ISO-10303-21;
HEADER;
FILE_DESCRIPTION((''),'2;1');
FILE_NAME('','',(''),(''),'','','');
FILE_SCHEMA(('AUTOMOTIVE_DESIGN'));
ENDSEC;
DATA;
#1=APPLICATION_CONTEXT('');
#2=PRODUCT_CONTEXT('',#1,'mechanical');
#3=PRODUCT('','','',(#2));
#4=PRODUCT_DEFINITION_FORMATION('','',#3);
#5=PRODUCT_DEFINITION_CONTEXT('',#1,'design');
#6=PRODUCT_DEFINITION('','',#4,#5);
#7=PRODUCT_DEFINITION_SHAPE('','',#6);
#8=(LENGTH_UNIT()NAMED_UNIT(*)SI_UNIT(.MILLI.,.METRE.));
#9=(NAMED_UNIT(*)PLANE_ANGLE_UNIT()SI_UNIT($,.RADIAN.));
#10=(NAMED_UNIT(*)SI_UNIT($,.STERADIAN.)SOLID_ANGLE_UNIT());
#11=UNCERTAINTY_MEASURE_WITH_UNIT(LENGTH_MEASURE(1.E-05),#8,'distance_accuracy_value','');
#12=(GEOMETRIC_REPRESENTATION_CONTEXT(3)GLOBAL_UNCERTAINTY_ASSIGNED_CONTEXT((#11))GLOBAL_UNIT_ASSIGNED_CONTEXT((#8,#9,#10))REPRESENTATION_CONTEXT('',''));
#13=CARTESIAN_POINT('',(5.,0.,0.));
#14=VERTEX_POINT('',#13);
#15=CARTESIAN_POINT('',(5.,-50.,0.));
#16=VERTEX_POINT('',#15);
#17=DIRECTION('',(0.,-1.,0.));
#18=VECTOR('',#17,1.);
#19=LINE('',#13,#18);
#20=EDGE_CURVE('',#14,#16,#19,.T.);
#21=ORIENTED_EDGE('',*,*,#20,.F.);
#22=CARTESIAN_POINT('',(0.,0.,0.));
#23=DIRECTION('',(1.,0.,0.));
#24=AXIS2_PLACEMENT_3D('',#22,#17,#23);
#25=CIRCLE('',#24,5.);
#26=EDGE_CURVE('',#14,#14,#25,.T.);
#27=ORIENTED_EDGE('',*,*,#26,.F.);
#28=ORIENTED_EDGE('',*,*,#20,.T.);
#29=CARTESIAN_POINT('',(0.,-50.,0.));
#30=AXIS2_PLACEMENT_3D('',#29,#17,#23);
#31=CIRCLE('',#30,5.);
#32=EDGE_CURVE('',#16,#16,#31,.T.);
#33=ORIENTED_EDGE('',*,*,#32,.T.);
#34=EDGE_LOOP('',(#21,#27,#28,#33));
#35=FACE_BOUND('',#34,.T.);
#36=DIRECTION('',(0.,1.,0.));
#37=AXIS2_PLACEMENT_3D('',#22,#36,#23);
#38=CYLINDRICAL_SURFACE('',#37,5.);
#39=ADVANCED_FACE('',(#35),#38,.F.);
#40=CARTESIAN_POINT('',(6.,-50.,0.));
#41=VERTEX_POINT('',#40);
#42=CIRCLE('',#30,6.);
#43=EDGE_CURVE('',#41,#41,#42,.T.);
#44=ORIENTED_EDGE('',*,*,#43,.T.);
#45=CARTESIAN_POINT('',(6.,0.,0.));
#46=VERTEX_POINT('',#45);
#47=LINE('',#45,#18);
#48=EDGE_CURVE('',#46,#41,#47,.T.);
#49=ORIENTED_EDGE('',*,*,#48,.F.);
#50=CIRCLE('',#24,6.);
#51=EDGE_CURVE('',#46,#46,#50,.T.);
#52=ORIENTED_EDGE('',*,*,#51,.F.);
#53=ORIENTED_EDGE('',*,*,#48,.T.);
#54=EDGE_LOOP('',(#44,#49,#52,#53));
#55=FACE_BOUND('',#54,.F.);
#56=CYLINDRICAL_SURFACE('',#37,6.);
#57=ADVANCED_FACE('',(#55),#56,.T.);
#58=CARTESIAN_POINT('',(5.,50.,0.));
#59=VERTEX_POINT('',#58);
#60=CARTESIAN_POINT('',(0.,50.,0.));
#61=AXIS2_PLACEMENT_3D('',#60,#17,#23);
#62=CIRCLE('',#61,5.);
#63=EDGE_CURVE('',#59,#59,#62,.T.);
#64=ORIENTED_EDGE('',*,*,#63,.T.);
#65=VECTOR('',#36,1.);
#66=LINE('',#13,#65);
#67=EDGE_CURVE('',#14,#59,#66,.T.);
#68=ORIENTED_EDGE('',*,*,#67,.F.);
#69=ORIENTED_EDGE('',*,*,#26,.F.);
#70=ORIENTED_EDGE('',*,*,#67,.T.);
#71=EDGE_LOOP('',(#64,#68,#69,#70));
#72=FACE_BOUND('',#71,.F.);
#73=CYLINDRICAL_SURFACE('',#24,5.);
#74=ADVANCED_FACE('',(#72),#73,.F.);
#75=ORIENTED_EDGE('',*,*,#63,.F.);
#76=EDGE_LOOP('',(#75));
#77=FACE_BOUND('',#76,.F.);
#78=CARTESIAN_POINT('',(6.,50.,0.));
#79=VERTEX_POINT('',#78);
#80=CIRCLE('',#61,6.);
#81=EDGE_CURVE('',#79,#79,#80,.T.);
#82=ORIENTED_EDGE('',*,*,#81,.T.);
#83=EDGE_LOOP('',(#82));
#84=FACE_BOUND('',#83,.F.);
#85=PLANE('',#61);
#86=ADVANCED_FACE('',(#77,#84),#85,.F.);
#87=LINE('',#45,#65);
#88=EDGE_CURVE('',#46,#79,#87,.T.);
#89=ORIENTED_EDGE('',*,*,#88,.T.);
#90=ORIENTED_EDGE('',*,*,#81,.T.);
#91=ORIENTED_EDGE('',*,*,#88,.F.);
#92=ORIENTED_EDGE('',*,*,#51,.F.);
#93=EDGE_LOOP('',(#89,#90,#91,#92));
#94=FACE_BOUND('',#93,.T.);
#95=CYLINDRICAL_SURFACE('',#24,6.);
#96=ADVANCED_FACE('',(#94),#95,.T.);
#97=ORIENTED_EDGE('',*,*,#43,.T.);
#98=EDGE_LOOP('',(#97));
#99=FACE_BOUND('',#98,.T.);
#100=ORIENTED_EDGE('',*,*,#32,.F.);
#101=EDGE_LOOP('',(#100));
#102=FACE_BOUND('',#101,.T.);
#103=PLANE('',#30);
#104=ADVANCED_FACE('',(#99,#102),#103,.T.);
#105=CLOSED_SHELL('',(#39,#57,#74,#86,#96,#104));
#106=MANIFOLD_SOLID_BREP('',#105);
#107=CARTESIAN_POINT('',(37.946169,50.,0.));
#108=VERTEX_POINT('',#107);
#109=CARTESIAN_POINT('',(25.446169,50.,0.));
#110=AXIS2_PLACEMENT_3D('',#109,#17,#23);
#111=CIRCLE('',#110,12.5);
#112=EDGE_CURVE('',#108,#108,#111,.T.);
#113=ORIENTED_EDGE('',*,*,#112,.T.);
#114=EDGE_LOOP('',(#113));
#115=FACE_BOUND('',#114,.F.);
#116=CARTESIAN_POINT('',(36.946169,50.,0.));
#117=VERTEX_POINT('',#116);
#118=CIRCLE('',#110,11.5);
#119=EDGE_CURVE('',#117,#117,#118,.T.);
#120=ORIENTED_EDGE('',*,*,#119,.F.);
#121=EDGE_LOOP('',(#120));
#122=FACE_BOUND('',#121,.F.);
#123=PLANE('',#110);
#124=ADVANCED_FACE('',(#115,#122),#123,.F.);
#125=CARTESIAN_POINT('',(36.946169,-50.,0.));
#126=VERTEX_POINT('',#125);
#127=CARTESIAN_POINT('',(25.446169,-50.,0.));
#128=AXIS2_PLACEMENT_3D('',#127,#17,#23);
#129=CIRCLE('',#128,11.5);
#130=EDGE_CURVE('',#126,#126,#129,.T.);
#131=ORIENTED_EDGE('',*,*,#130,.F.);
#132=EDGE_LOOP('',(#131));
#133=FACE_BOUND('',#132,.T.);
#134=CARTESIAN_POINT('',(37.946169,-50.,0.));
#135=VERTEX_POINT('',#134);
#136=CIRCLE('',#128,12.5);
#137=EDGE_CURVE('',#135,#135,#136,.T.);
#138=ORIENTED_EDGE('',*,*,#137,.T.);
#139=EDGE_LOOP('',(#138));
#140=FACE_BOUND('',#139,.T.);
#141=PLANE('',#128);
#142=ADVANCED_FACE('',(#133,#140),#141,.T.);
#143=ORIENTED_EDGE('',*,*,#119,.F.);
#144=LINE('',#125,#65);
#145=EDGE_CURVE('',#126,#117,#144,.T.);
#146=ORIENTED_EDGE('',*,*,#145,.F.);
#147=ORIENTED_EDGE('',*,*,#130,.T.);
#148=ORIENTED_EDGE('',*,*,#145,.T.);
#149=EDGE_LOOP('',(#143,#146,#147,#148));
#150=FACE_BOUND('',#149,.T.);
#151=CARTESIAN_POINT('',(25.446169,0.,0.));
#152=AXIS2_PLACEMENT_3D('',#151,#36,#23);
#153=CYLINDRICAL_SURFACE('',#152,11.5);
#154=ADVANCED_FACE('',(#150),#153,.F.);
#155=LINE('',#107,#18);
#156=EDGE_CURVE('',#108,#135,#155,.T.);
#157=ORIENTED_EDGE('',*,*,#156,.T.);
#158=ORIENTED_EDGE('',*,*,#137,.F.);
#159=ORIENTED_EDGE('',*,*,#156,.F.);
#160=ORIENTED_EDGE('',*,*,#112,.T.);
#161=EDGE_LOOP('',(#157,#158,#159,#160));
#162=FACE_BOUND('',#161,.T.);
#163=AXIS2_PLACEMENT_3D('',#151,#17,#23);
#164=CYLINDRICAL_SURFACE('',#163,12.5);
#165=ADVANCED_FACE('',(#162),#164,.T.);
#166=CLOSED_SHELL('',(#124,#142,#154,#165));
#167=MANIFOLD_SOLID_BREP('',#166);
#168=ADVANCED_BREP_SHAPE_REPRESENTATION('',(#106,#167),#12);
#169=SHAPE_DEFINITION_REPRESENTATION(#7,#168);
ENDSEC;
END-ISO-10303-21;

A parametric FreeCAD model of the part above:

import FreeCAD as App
import Part
import Sketcher
Q = App.Units.Quantity

doc = App.newDocument("Part")
body = doc.addObject("PartDesign::Body", "Body")
body.AllowCompound = True

sketch1 = body.newObject("Sketcher::SketchObject", "Sketch")
sketch1.AttachmentSupport = (doc.getObject("XZ_Plane"), [""])
sketch1.MapMode = "FlatFace"
sketch1.addGeometry([
    Part.Circle(App.Vector(0, 0, 0), App.Vector(0, 0, 1), 6),
    Part.Circle(App.Vector(0, 0, 0), App.Vector(0, 0, 1), 5),
    Part.Circle(App.Vector(25, 0, 0), App.Vector(0, 0, 1), 12),
    Part.Circle(App.Vector(25, 0, 0), App.Vector(0, 0, 1), 12),
], False)
sketch1.addConstraint([
    Sketcher.Constraint("Coincident", 0, 3, -1, 1),
    Sketcher.Constraint("Coincident", 1, 3, -1, 1),
    Sketcher.Constraint("Coincident", 3, 3, 2, 3),
    Sketcher.Constraint("PointOnObject", 2, 3, -1),
    Sketcher.Constraint("Diameter", 0, Q("12 mm")),
    Sketcher.Constraint("Diameter", 1, Q("10 mm")),
    Sketcher.Constraint("Diameter", 2, Q("25 mm")),
    Sketcher.Constraint("Diameter", 3, Q("23 mm")),
    Sketcher.Constraint("DistanceX", -1, 1, 2, 3, Q("25.446169 mm")),
])
pad1 = body.newObject("PartDesign::Pad", "Pad")
pad1.Profile = sketch1
pad1.Length = 100
pad1.Midplane = True

doc.recompute()
